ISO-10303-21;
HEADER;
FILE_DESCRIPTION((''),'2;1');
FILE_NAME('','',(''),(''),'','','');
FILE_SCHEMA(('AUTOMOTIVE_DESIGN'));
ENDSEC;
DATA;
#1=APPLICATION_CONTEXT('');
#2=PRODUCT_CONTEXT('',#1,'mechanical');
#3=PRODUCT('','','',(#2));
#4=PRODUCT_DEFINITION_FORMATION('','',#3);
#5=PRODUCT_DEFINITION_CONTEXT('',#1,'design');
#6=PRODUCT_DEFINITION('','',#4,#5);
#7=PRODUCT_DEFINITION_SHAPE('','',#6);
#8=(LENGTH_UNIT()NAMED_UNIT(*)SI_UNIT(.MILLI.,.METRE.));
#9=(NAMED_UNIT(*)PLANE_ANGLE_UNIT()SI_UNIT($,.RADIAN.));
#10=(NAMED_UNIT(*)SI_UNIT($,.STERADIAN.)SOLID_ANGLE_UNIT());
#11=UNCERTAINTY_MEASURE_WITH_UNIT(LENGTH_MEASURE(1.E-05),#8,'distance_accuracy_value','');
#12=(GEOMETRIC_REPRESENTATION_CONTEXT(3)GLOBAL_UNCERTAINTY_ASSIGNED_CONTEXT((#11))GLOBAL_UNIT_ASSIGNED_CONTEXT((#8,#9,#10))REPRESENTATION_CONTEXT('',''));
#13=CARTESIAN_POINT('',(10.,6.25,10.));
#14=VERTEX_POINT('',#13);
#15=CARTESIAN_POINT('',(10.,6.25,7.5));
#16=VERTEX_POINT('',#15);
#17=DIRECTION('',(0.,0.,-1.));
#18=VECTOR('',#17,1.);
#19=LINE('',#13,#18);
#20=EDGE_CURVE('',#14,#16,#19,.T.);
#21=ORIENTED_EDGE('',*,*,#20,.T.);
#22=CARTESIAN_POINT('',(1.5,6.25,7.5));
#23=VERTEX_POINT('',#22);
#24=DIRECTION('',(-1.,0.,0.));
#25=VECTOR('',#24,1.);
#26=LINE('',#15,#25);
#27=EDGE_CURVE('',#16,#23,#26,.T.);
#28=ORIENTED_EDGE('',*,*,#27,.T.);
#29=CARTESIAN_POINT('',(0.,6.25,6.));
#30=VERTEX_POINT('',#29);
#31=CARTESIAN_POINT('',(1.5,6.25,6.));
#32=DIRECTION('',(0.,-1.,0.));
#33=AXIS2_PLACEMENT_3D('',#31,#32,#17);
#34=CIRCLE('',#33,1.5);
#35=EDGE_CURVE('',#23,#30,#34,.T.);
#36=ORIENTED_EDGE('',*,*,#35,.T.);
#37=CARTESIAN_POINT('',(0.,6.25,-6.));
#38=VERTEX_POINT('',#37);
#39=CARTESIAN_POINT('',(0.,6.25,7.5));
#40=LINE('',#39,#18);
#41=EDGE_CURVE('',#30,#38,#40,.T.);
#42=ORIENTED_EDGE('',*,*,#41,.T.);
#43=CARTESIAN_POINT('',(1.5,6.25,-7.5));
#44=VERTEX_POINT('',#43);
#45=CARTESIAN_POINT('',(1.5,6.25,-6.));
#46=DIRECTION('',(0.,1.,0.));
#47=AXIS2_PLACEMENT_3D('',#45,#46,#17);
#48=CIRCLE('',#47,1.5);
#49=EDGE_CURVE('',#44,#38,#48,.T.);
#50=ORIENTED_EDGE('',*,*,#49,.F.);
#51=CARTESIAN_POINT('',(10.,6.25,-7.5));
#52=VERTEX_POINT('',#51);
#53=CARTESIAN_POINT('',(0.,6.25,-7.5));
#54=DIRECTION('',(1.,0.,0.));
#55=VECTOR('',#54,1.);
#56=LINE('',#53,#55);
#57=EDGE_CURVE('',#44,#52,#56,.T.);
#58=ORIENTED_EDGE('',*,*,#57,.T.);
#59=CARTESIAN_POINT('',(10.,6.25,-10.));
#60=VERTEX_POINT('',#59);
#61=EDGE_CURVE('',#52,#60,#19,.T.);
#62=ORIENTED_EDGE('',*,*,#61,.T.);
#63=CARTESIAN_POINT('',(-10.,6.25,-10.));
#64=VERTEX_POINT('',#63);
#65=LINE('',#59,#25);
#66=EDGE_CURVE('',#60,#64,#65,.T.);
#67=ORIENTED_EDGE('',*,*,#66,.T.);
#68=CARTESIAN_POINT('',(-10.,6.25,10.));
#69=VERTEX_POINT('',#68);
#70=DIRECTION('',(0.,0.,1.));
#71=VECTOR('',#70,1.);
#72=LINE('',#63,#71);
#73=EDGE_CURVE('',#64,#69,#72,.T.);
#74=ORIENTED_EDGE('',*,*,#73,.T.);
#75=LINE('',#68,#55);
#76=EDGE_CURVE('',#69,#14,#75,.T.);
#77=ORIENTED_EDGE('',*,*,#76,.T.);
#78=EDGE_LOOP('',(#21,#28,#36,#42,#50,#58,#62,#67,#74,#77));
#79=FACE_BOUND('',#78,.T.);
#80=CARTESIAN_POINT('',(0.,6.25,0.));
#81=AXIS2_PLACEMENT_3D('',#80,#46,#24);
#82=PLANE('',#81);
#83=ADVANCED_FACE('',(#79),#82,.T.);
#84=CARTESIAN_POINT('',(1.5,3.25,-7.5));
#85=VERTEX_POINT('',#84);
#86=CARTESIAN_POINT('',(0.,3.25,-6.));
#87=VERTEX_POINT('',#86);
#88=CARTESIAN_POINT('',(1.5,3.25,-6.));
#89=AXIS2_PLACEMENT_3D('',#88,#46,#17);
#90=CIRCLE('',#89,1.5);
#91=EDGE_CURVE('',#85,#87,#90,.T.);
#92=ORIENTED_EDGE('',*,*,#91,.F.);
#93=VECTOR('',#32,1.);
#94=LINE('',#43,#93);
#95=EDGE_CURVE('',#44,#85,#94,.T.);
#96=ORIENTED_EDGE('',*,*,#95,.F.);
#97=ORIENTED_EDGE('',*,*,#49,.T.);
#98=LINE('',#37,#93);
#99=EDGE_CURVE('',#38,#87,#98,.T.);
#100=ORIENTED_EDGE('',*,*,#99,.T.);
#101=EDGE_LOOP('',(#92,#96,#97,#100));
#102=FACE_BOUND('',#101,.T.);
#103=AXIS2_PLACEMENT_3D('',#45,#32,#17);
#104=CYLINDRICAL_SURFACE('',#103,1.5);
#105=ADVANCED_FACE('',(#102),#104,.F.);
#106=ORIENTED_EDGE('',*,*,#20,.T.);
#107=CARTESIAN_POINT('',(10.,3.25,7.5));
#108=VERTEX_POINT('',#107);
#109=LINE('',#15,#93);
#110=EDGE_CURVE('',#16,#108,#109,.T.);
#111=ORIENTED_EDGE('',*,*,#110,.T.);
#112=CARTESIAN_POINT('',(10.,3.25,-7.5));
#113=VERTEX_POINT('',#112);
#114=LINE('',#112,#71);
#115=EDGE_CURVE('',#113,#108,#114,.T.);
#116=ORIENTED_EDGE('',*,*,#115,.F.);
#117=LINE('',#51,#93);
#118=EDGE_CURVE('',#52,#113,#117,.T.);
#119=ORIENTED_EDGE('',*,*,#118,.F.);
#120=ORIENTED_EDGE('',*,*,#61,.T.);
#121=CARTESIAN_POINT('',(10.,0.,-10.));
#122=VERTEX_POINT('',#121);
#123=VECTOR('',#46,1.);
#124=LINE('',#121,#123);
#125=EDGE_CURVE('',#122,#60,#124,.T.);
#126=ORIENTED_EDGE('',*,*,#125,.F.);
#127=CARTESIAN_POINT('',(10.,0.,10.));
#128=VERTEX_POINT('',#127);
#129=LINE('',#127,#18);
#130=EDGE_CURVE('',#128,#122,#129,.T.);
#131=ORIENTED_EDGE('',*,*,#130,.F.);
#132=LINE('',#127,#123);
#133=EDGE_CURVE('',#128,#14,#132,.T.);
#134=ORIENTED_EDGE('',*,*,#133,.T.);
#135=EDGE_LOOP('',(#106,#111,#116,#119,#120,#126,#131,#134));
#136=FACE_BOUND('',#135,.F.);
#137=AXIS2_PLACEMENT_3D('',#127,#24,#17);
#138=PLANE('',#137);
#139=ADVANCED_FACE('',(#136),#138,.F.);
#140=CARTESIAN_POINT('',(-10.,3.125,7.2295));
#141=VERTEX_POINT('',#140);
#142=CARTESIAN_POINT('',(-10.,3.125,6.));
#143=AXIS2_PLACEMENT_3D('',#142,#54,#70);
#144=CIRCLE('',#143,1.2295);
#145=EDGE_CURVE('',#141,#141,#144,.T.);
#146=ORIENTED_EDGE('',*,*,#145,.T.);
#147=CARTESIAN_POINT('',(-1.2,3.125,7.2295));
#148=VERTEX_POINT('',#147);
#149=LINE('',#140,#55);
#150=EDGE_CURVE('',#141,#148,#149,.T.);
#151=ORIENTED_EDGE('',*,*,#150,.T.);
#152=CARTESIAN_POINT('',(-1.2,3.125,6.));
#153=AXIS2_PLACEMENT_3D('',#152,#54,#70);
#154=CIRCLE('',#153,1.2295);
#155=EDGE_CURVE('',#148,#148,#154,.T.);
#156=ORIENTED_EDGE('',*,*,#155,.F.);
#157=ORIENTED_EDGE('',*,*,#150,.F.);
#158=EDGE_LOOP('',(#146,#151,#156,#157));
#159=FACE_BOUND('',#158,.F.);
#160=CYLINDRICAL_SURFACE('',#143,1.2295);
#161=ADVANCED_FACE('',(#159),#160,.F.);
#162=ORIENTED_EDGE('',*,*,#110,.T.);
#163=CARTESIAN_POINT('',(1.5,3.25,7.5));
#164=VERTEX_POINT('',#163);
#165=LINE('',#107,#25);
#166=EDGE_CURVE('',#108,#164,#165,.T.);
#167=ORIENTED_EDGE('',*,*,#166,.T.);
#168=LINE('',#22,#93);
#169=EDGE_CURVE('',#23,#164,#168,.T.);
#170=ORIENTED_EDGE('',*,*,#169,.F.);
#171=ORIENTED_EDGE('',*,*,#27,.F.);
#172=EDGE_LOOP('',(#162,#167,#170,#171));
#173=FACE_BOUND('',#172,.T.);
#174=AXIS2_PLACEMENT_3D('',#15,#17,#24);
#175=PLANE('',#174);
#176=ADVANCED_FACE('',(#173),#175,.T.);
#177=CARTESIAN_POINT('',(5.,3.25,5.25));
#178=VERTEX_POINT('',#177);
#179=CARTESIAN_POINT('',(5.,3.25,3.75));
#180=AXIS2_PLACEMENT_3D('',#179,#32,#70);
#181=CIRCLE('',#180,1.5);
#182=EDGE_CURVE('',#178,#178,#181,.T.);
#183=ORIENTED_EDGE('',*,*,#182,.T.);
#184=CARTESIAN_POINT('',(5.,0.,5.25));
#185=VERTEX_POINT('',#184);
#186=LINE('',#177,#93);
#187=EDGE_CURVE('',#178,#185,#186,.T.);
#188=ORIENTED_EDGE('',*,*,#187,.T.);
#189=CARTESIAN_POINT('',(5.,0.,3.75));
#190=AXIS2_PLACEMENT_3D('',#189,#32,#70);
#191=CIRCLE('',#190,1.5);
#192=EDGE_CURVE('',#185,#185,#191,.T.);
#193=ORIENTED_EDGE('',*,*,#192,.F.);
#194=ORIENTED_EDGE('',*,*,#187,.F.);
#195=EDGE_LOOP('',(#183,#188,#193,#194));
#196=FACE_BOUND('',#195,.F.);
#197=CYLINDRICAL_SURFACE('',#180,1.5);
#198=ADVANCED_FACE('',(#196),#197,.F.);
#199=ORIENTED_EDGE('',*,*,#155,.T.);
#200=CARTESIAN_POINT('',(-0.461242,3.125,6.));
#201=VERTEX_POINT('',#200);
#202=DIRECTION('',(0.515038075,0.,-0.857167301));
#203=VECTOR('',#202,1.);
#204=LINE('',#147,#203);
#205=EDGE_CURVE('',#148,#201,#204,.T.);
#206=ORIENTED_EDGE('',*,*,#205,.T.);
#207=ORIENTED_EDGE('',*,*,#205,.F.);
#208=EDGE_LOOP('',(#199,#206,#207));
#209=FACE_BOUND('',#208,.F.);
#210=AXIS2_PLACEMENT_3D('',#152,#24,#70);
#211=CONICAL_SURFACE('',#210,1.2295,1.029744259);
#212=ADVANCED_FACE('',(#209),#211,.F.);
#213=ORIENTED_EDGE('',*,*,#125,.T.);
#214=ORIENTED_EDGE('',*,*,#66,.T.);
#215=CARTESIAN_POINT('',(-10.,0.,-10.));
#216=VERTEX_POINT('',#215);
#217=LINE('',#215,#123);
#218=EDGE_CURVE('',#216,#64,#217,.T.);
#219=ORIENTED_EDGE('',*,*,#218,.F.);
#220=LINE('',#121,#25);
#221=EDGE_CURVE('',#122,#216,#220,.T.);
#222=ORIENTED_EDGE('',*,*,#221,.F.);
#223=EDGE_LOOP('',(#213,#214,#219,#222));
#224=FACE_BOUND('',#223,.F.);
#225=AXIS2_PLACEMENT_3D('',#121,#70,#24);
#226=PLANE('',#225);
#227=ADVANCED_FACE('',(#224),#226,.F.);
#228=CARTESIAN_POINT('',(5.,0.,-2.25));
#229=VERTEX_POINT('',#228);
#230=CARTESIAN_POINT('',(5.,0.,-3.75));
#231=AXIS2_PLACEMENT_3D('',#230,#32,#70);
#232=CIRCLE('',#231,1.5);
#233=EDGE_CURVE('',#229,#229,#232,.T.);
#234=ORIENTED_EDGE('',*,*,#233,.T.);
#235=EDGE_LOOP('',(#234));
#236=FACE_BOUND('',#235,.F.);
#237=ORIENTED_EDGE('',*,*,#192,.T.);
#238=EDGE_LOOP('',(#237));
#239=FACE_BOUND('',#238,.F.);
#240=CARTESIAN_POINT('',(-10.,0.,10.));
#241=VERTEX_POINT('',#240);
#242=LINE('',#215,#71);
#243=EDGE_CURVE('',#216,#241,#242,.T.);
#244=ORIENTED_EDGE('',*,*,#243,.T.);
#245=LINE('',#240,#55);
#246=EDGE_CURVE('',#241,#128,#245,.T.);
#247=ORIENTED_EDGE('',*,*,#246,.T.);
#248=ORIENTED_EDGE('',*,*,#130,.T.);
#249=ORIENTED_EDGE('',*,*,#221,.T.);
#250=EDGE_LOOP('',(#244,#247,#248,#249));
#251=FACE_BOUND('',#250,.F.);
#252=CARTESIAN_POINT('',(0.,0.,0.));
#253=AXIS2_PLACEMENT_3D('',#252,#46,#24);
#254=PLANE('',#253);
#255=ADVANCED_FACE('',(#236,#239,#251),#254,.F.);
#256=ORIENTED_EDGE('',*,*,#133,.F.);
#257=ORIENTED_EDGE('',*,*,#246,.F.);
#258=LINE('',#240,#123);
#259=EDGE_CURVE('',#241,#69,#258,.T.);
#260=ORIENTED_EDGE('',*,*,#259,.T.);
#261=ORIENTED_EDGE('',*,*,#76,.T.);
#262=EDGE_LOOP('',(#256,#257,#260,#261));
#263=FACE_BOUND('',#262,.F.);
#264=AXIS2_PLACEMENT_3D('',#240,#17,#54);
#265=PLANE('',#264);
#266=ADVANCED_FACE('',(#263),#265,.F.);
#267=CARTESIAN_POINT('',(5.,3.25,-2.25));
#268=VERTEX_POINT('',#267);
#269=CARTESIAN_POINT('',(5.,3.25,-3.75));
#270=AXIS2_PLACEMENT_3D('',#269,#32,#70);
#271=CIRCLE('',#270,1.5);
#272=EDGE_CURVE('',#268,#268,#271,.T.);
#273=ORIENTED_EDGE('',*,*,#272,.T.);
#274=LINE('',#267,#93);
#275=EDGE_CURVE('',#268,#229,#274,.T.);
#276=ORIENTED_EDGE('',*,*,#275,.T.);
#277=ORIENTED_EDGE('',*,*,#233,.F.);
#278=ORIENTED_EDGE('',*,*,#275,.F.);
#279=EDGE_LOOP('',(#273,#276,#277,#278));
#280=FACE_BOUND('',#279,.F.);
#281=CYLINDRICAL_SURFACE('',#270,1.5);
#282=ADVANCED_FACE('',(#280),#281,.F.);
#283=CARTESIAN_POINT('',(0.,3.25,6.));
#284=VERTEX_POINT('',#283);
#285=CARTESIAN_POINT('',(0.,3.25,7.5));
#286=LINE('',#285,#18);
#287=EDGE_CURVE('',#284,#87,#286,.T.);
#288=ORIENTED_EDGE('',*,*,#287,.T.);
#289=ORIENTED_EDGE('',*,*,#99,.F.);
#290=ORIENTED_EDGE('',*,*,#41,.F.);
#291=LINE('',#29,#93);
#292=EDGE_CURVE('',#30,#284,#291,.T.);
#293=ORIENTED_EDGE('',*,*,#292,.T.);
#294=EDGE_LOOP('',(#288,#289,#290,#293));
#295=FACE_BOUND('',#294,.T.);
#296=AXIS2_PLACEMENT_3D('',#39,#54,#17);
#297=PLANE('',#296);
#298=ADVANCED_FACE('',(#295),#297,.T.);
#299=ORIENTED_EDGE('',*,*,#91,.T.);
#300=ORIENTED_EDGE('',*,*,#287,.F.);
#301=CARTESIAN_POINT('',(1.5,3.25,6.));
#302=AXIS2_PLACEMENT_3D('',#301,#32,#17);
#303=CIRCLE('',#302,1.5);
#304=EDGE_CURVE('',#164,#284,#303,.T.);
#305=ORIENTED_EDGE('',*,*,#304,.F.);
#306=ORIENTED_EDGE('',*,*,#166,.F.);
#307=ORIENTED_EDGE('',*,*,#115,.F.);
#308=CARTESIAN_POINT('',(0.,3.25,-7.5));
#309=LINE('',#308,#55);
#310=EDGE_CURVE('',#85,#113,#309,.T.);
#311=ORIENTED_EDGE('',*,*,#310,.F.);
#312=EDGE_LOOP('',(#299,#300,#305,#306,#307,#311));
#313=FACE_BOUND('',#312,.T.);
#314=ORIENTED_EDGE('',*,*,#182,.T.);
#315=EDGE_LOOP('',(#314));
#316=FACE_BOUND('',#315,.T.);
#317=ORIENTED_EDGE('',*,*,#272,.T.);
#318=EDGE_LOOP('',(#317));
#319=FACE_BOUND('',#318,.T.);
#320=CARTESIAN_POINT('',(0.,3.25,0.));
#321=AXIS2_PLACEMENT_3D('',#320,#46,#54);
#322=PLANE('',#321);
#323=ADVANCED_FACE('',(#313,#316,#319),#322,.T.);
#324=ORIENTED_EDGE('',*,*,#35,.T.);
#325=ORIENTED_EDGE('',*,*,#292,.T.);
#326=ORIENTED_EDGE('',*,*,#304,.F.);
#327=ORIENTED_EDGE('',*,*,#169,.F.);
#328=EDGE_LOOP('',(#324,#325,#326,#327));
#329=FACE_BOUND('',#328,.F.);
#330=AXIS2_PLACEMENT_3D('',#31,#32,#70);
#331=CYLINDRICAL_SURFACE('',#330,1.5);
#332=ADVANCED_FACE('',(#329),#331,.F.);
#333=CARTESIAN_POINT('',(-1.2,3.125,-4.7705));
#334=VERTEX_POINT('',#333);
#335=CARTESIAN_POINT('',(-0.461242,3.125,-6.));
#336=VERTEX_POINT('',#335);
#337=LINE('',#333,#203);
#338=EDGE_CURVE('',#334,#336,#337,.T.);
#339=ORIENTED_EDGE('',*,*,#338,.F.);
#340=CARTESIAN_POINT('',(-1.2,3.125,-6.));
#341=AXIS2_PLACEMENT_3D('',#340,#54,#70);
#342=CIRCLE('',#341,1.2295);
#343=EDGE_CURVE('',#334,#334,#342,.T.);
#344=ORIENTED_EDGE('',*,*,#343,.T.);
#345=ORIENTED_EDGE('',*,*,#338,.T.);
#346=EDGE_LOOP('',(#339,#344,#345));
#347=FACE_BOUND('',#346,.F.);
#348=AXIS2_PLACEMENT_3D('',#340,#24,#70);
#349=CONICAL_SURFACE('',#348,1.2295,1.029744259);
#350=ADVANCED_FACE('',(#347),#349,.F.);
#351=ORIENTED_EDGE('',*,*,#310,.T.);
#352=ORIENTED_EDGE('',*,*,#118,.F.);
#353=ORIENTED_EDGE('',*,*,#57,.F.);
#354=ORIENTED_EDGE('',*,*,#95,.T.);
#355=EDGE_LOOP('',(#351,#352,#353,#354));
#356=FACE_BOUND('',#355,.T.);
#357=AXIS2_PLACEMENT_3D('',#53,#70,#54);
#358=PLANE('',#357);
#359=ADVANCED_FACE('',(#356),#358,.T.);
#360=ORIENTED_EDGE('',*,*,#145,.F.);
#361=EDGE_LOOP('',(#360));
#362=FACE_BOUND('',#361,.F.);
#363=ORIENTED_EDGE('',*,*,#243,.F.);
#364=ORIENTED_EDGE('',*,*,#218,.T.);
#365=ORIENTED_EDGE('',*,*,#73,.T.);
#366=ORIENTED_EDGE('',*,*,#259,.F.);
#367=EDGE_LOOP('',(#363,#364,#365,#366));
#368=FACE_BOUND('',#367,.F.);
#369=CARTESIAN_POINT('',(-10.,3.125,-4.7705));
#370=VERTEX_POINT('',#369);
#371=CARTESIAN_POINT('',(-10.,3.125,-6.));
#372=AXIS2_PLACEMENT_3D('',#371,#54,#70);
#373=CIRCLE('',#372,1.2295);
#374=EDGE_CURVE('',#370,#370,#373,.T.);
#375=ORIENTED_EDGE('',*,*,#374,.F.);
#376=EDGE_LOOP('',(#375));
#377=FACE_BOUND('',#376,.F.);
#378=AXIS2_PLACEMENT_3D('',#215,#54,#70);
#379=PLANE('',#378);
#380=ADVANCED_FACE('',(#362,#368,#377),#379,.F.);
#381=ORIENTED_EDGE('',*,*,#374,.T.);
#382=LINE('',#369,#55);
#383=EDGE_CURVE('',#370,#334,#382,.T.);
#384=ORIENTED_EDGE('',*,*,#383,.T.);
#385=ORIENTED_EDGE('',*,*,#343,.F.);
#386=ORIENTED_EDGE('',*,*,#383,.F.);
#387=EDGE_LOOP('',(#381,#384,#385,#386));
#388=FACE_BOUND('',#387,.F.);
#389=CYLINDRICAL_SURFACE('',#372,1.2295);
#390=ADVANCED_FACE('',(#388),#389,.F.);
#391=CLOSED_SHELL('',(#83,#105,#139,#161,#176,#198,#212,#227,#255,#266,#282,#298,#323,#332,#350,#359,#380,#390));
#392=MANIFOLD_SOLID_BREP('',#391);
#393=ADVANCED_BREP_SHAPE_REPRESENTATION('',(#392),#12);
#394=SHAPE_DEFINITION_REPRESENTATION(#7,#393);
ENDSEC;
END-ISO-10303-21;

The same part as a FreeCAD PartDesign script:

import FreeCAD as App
import Part
import Sketcher
Q = App.Units.Quantity


def edges_at(feature, points):
    """Names of the edges that pass closest to the given points."""
    edges = feature.Shape.Edges
    near = lambda p: min(range(len(edges)), key=lambda i: edges[i].distToShape(Part.Vertex(*p))[0])
    return sorted({f"Edge{near(p) + 1}" for p in points})


def add_polygon(sketch, points):
    """Adds a closed chain of lines whose ends are joined by coincident constraints."""
    first, n = sketch.GeometryCount, len(points)
    for a, b in zip(points, points[1:] + points[:1]):
        sketch.addGeometry(Part.LineSegment(App.Vector(*a, 0), App.Vector(*b, 0)), False)
    for i in range(n):
        sketch.addConstraint(Sketcher.Constraint("Coincident", first + i, 2, first + (i + 1) % n, 1))

doc = App.newDocument("Part")
body = doc.addObject("PartDesign::Body", "Body")

sketch1 = body.newObject("Sketcher::SketchObject", "Sketch")
sketch1.AttachmentSupport = (doc.getObject("XZ_Plane"), [""])
sketch1.MapMode = "FlatFace"
add_polygon(sketch1, [(10, 10), (10, -10), (-10, -10), (-10, 10)])
sketch1.addConstraint(Sketcher.Constraint("Vertical", 0))
sketch1.addConstraint(Sketcher.Constraint("Horizontal", 1))
sketch1.addConstraint(Sketcher.Constraint("Vertical", 2))
sketch1.addConstraint(Sketcher.Constraint("Horizontal", 3))
sketch1.addConstraint(Sketcher.Constraint("Symmetric", 0, 2, 2, 2, -1, 1))
sketch1.addConstraint(Sketcher.Constraint("Equal", 3, 0))
sketch1.addConstraint(Sketcher.Constraint("DistanceX", 1, 2, 1, 1, Q("20 mm")))
pad1 = body.newObject("PartDesign::Pad", "Pad")
pad1.Profile = sketch1
pad1.Length = 6.25
pad1.Reversed = True

sketch2 = body.newObject("Sketcher::SketchObject", "Sketch001")
sketch2.AttachmentSupport = (doc.getObject("XZ_Plane"), [""])
sketch2.MapMode = "FlatFace"
sketch2.AttachmentOffset = App.Placement(App.Vector(0, 0, -6.25), App.Rotation())
add_polygon(sketch2, [(0, 8), (10, 8), (10, -8), (0, -8)])
sketch2.addConstraint(Sketcher.Constraint("Horizontal", 0))
sketch2.addConstraint(Sketcher.Constraint("Vertical", 1))
sketch2.addConstraint(Sketcher.Constraint("Horizontal", 2))
sketch2.addConstraint(Sketcher.Constraint("Vertical", 3))
sketch2.addConstraint(Sketcher.Constraint("Symmetric", 2, 2, 3, 2, -1, 1))
sketch2.addConstraint(Sketcher.Constraint("DistanceX", 0, 1, 0, 2, Q("10 mm")))
sketch2.addConstraint(Sketcher.Constraint("DistanceY", 1, 2, 1, 1, Q("15 mm")))
pocket1 = body.newObject("PartDesign::Pocket", "Pocket")
pocket1.Profile = sketch2
pocket1.Length = 3
pocket1.Reversed = True

sketch3 = body.newObject("Sketcher::SketchObject", "Sketch002")
sketch3.AttachmentSupport = (doc.getObject("XZ_Plane"), [""])
sketch3.MapMode = "FlatFace"
sketch3.AttachmentOffset = App.Placement(App.Vector(0, 0, -3.25), App.Rotation())
sketch3.addGeometry(Part.Circle(App.Vector(5, 3.8, 0), App.Vector(0, 0, 1), 1.5), False)
sketch3.addGeometry(Part.Circle(App.Vector(5, -3.8, 0), App.Vector(0, 0, 1), 1.5), False)
sketch3.addConstraint(Sketcher.Constraint("Equal", 0, 1))
sketch3.addConstraint(Sketcher.Constraint("Symmetric", 0, 3, 1, 3, -1))
sketch3.addConstraint(Sketcher.Constraint("Diameter", 0, Q("3 mm")))
sketch3.addConstraint(Sketcher.Constraint("DistanceX", -1, 1, 0, 3, Q("5 mm")))
sketch3.addConstraint(Sketcher.Constraint("DistanceY", 1, 3, 0, 3, Q("7.5 mm")))
doc.recompute()
hole = body.newObject("PartDesign::Hole", "Hole")
hole.Profile = sketch3
hole.ThreadType = "None"
hole.Diameter = 3
hole.DepthType = "ThroughAll"
hole.Reversed = True

sketch4 = body.newObject("Sketcher::SketchObject", "Sketch003")
sketch4.AttachmentSupport = (doc.getObject("YZ_Plane"), [""])
sketch4.MapMode = "FlatFace"
sketch4.AttachmentOffset = App.Placement(App.Vector(0, 0, -10), App.Rotation())
sketch4.addGeometry(Part.Circle(App.Vector(3.1, 6, 0), App.Vector(0, 0, 1), 1.2), False)
sketch4.addGeometry(Part.Circle(App.Vector(3.1, -6, 0), App.Vector(0, 0, 1), 1.2), False)
sketch4.addConstraint(Sketcher.Constraint("Equal", 0, 1))
sketch4.addConstraint(Sketcher.Constraint("Symmetric", 0, 3, 1, 3, -1))
sketch4.addConstraint(Sketcher.Constraint("Diameter", 0, Q("2.459 mm")))
sketch4.addConstraint(Sketcher.Constraint("DistanceY", -1, 1, 0, 3, Q("6 mm")))
sketch4.addConstraint(Sketcher.Constraint("DistanceX", -1, 1, 0, 3, Q("3.125 mm")))
doc.recompute()
hole2 = body.newObject("PartDesign::Hole", "Hole001")
hole2.Profile = sketch4
hole2.ThreadType = "None"
hole2.Diameter = 2.459
hole2.DepthType = "Dimension"
hole2.Depth = 8.8
hole2.DrillPoint = "Angled"
hole2.DrillPointAngle = 118
hole2.Reversed = True
doc.recompute()

fillet = body.newObject("PartDesign::Fillet", "Fillet")
fillet.Base = (hole2, edges_at(hole2, [(0, 4.75, -7.5), (0, 4.75, 7.5)]))
fillet.Radius = 1.5

doc.recompute()
